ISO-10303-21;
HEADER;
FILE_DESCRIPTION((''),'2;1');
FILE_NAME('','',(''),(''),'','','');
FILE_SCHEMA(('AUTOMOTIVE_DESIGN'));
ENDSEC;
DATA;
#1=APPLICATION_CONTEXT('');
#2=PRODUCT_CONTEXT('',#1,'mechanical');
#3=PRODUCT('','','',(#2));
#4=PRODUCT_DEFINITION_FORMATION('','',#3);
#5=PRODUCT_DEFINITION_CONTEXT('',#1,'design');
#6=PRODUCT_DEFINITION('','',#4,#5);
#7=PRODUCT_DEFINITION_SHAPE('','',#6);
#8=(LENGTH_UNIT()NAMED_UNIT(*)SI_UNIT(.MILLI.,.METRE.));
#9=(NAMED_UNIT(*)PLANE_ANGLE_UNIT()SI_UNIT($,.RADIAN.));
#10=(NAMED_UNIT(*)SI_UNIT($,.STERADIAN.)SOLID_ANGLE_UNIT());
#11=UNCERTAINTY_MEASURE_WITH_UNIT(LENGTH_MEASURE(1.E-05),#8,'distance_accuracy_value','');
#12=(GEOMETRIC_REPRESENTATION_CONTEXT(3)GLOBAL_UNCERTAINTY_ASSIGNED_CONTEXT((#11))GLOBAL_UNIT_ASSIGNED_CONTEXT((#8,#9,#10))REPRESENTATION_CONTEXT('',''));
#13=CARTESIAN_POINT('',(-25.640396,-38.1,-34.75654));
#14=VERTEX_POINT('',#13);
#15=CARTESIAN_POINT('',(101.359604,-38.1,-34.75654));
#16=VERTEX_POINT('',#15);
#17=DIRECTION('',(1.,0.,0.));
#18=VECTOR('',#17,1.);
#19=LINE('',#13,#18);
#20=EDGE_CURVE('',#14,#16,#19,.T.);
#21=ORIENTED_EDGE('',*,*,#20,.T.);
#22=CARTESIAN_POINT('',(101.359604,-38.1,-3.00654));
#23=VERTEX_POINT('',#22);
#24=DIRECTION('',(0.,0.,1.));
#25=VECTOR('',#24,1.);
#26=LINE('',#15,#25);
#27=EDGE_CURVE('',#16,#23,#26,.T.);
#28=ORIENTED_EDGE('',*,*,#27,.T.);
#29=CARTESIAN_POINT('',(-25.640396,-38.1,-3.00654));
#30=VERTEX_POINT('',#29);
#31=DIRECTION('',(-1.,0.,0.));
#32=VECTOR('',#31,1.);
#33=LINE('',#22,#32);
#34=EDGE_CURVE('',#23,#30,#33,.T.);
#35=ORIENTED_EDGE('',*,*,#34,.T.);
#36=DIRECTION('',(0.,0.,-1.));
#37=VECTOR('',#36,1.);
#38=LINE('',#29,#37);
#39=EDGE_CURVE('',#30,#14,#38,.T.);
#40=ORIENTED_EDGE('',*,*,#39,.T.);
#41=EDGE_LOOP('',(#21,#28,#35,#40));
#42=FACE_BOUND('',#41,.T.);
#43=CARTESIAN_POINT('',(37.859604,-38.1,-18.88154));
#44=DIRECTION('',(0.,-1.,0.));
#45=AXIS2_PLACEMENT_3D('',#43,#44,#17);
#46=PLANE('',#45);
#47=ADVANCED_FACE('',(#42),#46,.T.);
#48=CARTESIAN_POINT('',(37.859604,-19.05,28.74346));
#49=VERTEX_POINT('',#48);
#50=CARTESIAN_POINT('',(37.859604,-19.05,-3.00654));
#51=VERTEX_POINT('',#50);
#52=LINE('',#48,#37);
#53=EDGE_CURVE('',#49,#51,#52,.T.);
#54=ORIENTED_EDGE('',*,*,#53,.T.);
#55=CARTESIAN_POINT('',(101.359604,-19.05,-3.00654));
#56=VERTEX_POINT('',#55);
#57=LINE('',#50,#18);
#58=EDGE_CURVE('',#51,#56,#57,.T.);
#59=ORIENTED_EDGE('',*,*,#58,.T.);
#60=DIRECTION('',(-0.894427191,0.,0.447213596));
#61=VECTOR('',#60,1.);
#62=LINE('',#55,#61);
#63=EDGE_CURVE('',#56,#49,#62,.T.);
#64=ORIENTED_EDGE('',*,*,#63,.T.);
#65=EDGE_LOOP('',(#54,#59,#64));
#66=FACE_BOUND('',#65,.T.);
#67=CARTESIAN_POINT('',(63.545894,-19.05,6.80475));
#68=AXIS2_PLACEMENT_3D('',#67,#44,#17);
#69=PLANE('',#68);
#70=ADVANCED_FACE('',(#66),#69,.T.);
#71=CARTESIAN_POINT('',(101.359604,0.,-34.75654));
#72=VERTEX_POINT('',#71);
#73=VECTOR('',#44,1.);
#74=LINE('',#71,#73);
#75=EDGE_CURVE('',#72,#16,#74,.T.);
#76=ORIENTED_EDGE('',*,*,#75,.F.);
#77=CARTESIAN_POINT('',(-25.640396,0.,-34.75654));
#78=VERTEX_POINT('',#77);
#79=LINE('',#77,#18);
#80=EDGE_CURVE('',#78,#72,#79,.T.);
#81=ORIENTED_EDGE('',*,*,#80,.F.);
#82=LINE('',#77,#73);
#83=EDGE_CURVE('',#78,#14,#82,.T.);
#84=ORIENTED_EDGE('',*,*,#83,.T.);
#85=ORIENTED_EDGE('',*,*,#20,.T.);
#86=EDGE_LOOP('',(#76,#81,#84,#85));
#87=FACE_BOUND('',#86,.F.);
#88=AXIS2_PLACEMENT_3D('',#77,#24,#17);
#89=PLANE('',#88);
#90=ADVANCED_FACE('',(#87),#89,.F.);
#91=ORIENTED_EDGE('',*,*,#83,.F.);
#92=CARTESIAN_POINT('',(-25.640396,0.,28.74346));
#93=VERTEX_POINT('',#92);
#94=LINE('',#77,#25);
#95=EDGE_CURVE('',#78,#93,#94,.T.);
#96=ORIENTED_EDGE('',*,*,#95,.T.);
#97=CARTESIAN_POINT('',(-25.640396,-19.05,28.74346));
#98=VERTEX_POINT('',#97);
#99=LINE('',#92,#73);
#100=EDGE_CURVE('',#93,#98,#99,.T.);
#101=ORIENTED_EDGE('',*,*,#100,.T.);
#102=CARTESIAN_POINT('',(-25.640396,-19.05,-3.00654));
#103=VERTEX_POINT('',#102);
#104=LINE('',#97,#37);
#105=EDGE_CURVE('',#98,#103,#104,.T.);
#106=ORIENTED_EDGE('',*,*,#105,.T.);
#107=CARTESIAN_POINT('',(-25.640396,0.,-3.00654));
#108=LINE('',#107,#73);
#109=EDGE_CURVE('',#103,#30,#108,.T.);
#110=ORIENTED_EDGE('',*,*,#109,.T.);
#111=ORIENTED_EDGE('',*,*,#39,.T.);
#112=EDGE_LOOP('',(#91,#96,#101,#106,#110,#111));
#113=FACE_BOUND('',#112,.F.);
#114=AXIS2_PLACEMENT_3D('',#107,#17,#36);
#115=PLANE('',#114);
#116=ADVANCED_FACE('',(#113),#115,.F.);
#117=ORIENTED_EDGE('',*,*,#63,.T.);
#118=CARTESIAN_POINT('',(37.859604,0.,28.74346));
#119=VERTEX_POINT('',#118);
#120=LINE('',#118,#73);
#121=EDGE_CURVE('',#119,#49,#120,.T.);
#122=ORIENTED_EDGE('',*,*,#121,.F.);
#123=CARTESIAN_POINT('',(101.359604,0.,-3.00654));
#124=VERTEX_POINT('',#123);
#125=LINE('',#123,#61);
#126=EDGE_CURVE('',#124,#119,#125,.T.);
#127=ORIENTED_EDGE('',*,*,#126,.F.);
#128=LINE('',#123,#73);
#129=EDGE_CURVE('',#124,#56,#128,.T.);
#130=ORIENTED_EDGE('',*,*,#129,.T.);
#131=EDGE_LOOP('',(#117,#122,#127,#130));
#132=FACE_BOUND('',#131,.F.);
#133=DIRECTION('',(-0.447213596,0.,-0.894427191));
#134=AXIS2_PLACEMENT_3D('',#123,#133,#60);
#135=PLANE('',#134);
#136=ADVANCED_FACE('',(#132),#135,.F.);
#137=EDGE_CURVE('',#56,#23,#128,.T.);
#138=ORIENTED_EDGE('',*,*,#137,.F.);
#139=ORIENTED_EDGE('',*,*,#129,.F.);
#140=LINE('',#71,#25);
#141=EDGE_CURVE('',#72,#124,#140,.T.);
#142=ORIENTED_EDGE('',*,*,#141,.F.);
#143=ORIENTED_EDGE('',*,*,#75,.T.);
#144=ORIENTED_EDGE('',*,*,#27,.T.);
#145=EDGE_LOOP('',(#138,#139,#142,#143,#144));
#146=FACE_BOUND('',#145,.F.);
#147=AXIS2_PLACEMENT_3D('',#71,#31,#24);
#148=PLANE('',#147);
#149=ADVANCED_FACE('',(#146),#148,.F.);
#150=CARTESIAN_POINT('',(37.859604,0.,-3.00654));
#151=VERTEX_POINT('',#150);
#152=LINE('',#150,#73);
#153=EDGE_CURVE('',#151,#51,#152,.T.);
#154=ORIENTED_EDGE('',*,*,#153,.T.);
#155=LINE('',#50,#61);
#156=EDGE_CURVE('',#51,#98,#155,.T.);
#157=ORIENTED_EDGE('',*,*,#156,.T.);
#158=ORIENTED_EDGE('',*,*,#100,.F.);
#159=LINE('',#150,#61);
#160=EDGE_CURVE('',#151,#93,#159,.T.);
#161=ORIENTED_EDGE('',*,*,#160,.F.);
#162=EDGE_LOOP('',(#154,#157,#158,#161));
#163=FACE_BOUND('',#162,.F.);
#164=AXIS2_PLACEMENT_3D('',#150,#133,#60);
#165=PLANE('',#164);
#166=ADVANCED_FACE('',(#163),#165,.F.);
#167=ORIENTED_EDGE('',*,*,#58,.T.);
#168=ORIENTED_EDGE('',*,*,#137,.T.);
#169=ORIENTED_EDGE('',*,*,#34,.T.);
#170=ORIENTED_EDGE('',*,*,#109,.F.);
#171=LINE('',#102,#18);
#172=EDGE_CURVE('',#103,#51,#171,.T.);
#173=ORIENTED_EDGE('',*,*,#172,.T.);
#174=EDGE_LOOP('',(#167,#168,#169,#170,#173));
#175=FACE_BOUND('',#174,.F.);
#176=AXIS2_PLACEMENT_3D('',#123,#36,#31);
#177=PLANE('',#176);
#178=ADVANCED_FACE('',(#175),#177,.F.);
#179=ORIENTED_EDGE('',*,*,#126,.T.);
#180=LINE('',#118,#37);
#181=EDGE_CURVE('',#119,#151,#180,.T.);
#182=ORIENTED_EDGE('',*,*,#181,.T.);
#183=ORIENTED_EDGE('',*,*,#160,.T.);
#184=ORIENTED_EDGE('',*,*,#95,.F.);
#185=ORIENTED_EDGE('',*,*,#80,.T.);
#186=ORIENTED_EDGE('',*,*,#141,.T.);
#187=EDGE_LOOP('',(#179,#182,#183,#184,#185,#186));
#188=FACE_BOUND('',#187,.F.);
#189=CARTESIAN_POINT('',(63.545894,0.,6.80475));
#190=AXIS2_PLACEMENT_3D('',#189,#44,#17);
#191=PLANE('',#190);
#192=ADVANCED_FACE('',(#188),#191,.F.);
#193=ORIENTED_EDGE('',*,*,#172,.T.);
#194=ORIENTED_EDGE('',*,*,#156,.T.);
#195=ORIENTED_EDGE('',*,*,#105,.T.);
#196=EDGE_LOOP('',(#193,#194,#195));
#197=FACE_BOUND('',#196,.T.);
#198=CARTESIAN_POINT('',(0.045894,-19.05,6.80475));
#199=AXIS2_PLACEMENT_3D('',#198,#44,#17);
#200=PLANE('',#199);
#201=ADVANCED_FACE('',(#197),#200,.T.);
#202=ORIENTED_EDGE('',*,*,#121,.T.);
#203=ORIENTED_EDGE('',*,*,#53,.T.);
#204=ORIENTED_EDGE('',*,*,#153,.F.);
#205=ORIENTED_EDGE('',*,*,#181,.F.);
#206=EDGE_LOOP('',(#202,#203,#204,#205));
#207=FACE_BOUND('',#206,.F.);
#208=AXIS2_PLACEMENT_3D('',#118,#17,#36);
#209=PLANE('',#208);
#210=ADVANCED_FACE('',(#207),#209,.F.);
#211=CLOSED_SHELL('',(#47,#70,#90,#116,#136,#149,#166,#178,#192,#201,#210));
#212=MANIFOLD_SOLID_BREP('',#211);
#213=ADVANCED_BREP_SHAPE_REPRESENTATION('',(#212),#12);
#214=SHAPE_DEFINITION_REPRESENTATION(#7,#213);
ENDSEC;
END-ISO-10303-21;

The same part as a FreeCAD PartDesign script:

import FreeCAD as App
import Part
import Sketcher
Q = App.Units.Quantity

doc = App.newDocument("Part")
body = doc.addObject("PartDesign::Body", "Body")

# Sketch on XZ plane
sketch1 = body.newObject("Sketcher::SketchObject", "Sketch")
sketch1.AttachmentSupport = (doc.getObject("XZ_Plane"), [""])
sketch1.MapMode = "FlatFace"
sketch1.addGeometry([
    Part.LineSegment(App.Vector(-26, -3, 0), App.Vector(-26, -35, 0)),
    Part.LineSegment(App.Vector(-26, -35, 0), App.Vector(101, -35, 0)),
    Part.LineSegment(App.Vector(101, -35, 0), App.Vector(101, -3, 0)),
    Part.LineSegment(App.Vector(101, -3, 0), App.Vector(-26, -3, 0)),
], False)
sketch1.addConstraint([
    Sketcher.Constraint("Coincident", 0, 2, 1, 1),
    Sketcher.Constraint("Coincident", 1, 2, 2, 1),
    Sketcher.Constraint("Coincident", 2, 2, 3, 1),
    Sketcher.Constraint("Coincident", 3, 2, 0, 1),
    Sketcher.Constraint("Vertical", 0),
    Sketcher.Constraint("Horizontal", 1),
    Sketcher.Constraint("Vertical", 2),
    Sketcher.Constraint("Horizontal", 3),
    Sketcher.Constraint("DistanceX", 1, 1, 1, 2, Q("5 in")),
    Sketcher.Constraint("DistanceY", 0, 2, 0, 1, Q("1.25 in")),
    Sketcher.Constraint("DistanceY", 0, 2, -1, 1, Q("34.75654 mm")),
    Sketcher.Constraint("DistanceX", 0, 2, -1, 1, Q("25.640396 mm")),
])
pad1 = body.newObject("PartDesign::Pad", "Pad")
pad1.Profile = sketch1
pad1.Length = Q("1.5 in")

# Sketch on XZ plane
sketch2 = body.newObject("Sketcher::SketchObject", "Sketch001")
sketch2.AttachmentSupport = (doc.getObject("XZ_Plane"), [""])
sketch2.MapMode = "FlatFace"
sketch2.addGeometry([
    Part.LineSegment(App.Vector(38, -3, 0), App.Vector(101, -3, 0)),  # 0
    Part.LineSegment(App.Vector(101, -3, 0), App.Vector(38, 29, 0)),  # 1
    Part.LineSegment(App.Vector(38, 29, 0), App.Vector(38, -3, 0)),  # 2
    Part.LineSegment(App.Vector(-26, 29, 0), App.Vector(-26, -3, 0)),  # 3
    Part.LineSegment(App.Vector(-26, -3, 0), App.Vector(38, -3, 0)),  # 4
    Part.LineSegment(App.Vector(38, -3, 0), App.Vector(-26, 29, 0)),  # 5
], False)
sketch2.addConstraint([
    Sketcher.Constraint("Coincident", 0, 2, 1, 1),
    Sketcher.Constraint("Coincident", 1, 2, 2, 1),
    Sketcher.Constraint("Coincident", 2, 2, 0, 1),
    Sketcher.Constraint("Coincident", 3, 2, 4, 1),
    Sketcher.Constraint("Coincident", 4, 2, 5, 1),
    Sketcher.Constraint("Coincident", 5, 2, 3, 1),
    Sketcher.Constraint("Horizontal", 0),
    Sketcher.Constraint("Vertical", 2),
    Sketcher.Constraint("Vertical", 3),
    Sketcher.Constraint("Horizontal", 4),
    Sketcher.Constraint("Coincident", 4, 2, 2, 2),
    Sketcher.Constraint("Parallel", 1, 5),
    Sketcher.Constraint("Horizontal", 1, 2, 5, 2),
    Sketcher.Constraint("DistanceX", 0, 1, 0, 2, Q("2.5 in")),
    Sketcher.Constraint("DistanceY", 2, 2, 2, 1, Q("1.25 in")),
    Sketcher.Constraint("DistanceY", 0, 2, -1, 1, Q("3.00654 mm")),
    Sketcher.Constraint("DistanceX", -1, 1, 0, 2, Q("101.359604 mm")),
])
pad2 = body.newObject("PartDesign::Pad", "Pad001")
pad2.Profile = sketch2
pad2.Length = Q("0.75 in")

doc.recompute()
